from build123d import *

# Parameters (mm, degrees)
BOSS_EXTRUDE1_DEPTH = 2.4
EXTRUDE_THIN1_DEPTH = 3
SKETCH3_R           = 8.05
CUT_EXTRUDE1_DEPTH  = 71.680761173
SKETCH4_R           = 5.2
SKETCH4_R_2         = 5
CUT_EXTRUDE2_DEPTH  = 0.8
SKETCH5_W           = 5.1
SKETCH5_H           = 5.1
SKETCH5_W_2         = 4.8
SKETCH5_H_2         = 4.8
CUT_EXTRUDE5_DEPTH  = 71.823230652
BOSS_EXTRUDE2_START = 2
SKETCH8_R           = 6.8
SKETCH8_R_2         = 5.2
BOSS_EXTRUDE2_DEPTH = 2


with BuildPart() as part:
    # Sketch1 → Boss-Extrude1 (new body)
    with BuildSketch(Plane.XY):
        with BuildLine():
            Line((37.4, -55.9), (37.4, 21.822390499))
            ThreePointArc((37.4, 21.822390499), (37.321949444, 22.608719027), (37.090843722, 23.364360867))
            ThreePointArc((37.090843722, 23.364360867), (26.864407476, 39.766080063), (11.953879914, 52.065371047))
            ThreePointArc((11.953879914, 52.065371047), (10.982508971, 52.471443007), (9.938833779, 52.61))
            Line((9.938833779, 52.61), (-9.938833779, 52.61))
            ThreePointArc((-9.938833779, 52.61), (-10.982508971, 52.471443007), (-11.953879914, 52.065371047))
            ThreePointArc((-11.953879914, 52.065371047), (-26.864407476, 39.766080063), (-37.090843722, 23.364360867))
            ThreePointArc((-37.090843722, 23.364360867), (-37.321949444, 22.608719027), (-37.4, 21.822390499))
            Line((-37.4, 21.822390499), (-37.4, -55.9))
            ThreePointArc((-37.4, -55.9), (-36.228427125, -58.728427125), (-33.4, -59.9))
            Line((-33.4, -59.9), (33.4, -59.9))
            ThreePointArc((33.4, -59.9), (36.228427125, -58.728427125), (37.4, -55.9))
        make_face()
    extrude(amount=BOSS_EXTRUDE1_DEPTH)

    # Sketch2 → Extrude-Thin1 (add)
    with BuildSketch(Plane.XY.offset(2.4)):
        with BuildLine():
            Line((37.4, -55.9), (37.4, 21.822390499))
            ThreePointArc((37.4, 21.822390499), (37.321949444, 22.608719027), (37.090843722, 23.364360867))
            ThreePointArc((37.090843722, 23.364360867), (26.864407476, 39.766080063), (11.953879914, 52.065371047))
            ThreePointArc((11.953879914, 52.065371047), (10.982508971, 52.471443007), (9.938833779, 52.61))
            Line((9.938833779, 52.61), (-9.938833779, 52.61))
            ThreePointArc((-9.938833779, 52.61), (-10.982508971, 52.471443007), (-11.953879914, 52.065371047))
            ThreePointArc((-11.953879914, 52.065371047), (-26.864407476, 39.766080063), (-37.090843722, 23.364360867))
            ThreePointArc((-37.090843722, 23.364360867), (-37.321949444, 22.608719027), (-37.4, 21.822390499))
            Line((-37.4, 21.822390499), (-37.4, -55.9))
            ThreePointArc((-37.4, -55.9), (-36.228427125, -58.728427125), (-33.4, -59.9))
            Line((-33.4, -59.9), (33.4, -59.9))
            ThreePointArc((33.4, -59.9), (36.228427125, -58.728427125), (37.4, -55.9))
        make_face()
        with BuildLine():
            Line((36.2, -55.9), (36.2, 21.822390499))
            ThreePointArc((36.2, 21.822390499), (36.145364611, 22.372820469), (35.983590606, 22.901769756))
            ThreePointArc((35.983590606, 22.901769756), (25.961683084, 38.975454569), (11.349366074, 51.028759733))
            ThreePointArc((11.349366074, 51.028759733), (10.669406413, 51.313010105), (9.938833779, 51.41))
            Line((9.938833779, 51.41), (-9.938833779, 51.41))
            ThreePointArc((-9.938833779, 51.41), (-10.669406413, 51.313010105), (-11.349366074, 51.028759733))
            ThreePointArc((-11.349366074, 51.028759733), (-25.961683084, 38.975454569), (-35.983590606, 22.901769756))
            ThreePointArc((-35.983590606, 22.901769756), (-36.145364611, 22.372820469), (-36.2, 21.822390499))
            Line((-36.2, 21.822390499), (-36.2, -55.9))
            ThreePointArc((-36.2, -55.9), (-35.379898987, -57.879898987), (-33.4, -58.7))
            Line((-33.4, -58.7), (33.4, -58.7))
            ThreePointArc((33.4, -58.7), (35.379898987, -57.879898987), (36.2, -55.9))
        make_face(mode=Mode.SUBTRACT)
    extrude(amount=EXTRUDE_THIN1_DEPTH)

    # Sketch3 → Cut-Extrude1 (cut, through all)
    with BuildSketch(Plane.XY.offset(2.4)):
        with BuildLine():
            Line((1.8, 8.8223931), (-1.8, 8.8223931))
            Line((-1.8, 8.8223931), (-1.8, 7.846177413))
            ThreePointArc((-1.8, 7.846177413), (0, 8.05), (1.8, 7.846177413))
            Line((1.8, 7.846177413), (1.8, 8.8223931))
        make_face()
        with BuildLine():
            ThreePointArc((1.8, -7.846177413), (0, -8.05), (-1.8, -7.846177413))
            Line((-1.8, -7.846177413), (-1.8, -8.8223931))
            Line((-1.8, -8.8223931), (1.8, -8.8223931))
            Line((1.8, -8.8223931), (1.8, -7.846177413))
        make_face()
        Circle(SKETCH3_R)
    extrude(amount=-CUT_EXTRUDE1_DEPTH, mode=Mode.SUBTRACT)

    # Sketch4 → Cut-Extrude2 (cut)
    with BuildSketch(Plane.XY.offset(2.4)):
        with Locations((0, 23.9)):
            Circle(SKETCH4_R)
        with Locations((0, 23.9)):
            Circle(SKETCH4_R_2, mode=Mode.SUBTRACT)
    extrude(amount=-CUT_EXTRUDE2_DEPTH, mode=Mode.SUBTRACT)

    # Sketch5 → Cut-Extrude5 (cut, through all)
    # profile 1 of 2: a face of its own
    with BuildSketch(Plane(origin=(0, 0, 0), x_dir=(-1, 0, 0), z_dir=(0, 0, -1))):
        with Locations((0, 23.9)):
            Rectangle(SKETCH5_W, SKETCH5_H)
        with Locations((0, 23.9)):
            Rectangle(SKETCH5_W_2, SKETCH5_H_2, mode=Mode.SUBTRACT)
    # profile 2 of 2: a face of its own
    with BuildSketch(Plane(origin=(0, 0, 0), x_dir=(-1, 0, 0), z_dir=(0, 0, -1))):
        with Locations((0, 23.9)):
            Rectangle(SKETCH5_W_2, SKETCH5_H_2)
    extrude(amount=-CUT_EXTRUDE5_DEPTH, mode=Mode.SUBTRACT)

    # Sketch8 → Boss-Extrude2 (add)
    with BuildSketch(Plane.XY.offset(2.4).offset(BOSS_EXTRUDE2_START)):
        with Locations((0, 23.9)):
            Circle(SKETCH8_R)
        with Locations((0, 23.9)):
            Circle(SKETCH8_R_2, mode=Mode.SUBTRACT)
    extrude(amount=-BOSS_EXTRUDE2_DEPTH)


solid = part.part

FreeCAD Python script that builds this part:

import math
import FreeCAD as App
import Part
import Sketcher

V = App.Vector
Q = App.Units.Quantity


def add_polygon(sketch, points):
    """Adds a closed chain of lines whose ends are joined by coincident constraints."""
    first, n = sketch.GeometryCount, len(points)
    for a, b in zip(points, points[1:] + points[:1]):
        sketch.addGeometry(Part.LineSegment(App.Vector(*a, 0), App.Vector(*b, 0)), False)
    for i in range(n):
        sketch.addConstraint(Sketcher.Constraint("Coincident", first + i, 2, first + (i + 1) % n, 1))

doc = App.newDocument("Part")
body = doc.addObject("PartDesign::Body", "Body")

sketch1 = body.newObject("Sketcher::SketchObject", "Sketch")
sketch1.AttachmentSupport = (doc.getObject("XY_Plane"), [""])
sketch1.MapMode = "FlatFace"
sketch1.addGeometry([
    Part.LineSegment(V(37.4, -55.9, 0), V(37.4, 21.8, 0)),
    Part.ArcOfCircle(Part.Circle(V(33.4, 21.8, 0), V(0, 0, 1), 4), math.radians(0), math.radians(23)),
    Part.ArcOfCircle(Part.Circle(V(-18.3, 0.2, 0), V(0, 0, 1), 60), math.radians(23), math.radians(60)),
    Part.ArcOfCircle(Part.Circle(V(9.9, 48.6, 0), V(0, 0, 1), 4), math.radians(60), math.radians(90)),
    Part.LineSegment(V(9.9, 52.6, 0), V(-9.9, 52.6, 0)),
    Part.ArcOfCircle(Part.Circle(V(-9.9, 48.6, 0), V(0, 0, 1), 4), math.radians(90), math.radians(120)),
    Part.ArcOfCircle(Part.Circle(V(18.3, 0.2, 0), V(0, 0, 1), 60), math.radians(120), math.radians(157)),
    Part.ArcOfCircle(Part.Circle(V(-33.4, 21.8, 0), V(0, 0, 1), 4), math.radians(157), math.radians(180)),
    Part.LineSegment(V(-37.4, 21.8, 0), V(-37.4, -55.9, 0)),
    Part.ArcOfCircle(Part.Circle(V(-33.4, -55.9, 0), V(0, 0, 1), 4), math.radians(180), math.radians(270)),
    Part.LineSegment(V(-33.4, -59.9, 0), V(33.4, -59.9, 0)),
    Part.ArcOfCircle(Part.Circle(V(33.4, -55.9, 0), V(0, 0, 1), 4), math.radians(-90), math.radians(0)),
], False)
sketch1.addConstraint([
    Sketcher.Constraint("Tangent", 0, 2, 1, 1),
    Sketcher.Constraint("Tangent", 1, 2, 2, 1),
    Sketcher.Constraint("Tangent", 2, 2, 3, 1),
    Sketcher.Constraint("Tangent", 3, 2, 4, 1),
    Sketcher.Constraint("Tangent", 4, 2, 5, 1),
    Sketcher.Constraint("Tangent", 5, 2, 6, 1),
    Sketcher.Constraint("Tangent", 6, 2, 7, 1),
    Sketcher.Constraint("Tangent", 7, 2, 8, 1),
    Sketcher.Constraint("Tangent", 8, 2, 9, 1),
    Sketcher.Constraint("Tangent", 9, 2, 10, 1),
    Sketcher.Constraint("Tangent", 10, 2, 11, 1),
    Sketcher.Constraint("Tangent", 11, 2, 0, 1),
    Sketcher.Constraint("Vertical", 0),
    Sketcher.Constraint("Horizontal", 4),
    Sketcher.Constraint("Vertical", 8),
    Sketcher.Constraint("Horizontal", 10),
    Sketcher.Constraint("Equal", 1, 3),
    Sketcher.Constraint("Equal", 3, 5),
    Sketcher.Constraint("Equal", 2, 6),
    Sketcher.Constraint("Equal", 5, 7),
    Sketcher.Constraint("Equal", 7, 9),
    Sketcher.Constraint("Equal", 9, 11),
    Sketcher.Constraint("Symmetric", 2, 3, 6, 3, -2),
    Sketcher.Constraint("Horizontal", 1, 3, 7, 3),
    Sketcher.Constraint("Radius", 1, Q("4 mm")),
    Sketcher.Constraint("Radius", 2, Q("60 mm")),
    Sketcher.Constraint("DistanceX", 10, 1, 10, 2, Q("66.8 mm")),
    Sketcher.Constraint("DistanceY", 9, 3, -1, 1, Q("55.9 mm")),
    Sketcher.Constraint("DistanceY", -1, 1, 3, 3, Q("48.61 mm")),
    Sketcher.Constraint("DistanceY", 0, 1, 0, 2, Q("77.72239 mm")),
    Sketcher.Constraint("DistanceX", 4, 2, 4, 1, Q("19.877668 mm")),
])
pad1 = body.newObject("PartDesign::Pad", "Pad")
pad1.Profile = sketch1
pad1.Length = 2.4

sketch2 = body.newObject("Sketcher::SketchObject", "Sketch001")
sketch2.AttachmentSupport = (doc.getObject("XY_Plane"), [""])
sketch2.MapMode = "FlatFace"
sketch2.AttachmentOffset = App.Placement(V(0, 0, 2.4), App.Rotation())
sketch2.addGeometry([
    Part.LineSegment(V(37.4, -55.9, 0), V(37.4, 21.8, 0)),
    Part.ArcOfCircle(Part.Circle(V(33.4, 21.8, 0), V(0, 0, 1), 4), math.radians(0), math.radians(23)),
    Part.ArcOfCircle(Part.Circle(V(-18.3, 0.2, 0), V(0, 0, 1), 60), math.radians(23), math.radians(60)),
    Part.ArcOfCircle(Part.Circle(V(9.9, 48.6, 0), V(0, 0, 1), 4), math.radians(60), math.radians(90)),
    Part.LineSegment(V(9.9, 52.6, 0), V(-9.9, 52.6, 0)),
    Part.ArcOfCircle(Part.Circle(V(-9.9, 48.6, 0), V(0, 0, 1), 4), math.radians(90), math.radians(120)),
    Part.ArcOfCircle(Part.Circle(V(18.3, 0.2, 0), V(0, 0, 1), 60), math.radians(120), math.radians(157)),
    Part.ArcOfCircle(Part.Circle(V(-33.4, 21.8, 0), V(0, 0, 1), 4), math.radians(157), math.radians(180)),
    Part.LineSegment(V(-37.4, 21.8, 0), V(-37.4, -55.9, 0)),
    Part.ArcOfCircle(Part.Circle(V(-33.4, -55.9, 0), V(0, 0, 1), 4), math.radians(180), math.radians(270)),
    Part.LineSegment(V(-33.4, -59.9, 0), V(33.4, -59.9, 0)),
    Part.ArcOfCircle(Part.Circle(V(33.4, -55.9, 0), V(0, 0, 1), 4), math.radians(-90), math.radians(0)),
    Part.LineSegment(V(36.2, 21.8, 0), V(36.2, -55.9, 0)),
    Part.ArcOfCircle(Part.Circle(V(33.4, -55.9, 0), V(0, 0, 1), 2.8), math.radians(-90), math.radians(0)),
    Part.LineSegment(V(33.4, -58.7, 0), V(-33.4, -58.7, 0)),
    Part.ArcOfCircle(Part.Circle(V(-33.4, -55.9, 0), V(0, 0, 1), 2.8), math.radians(-180), math.radians(-90)),
    Part.LineSegment(V(-36.2, -55.9, 0), V(-36.2, 21.8, 0)),
    Part.ArcOfCircle(Part.Circle(V(-33.4, 21.8, 0), V(0, 0, 1), 2.8), math.radians(157), math.radians(180)),
    Part.ArcOfCircle(Part.Circle(V(18.3, 0.2, 0), V(0, 0, 1), 58.8), math.radians(120), math.radians(157)),
    Part.ArcOfCircle(Part.Circle(V(-9.9, 48.6, 0), V(0, 0, 1), 2.8), math.radians(90), math.radians(120)),
    Part.LineSegment(V(-9.9, 51.4, 0), V(9.9, 51.4, 0)),
    Part.ArcOfCircle(Part.Circle(V(9.9, 48.6, 0), V(0, 0, 1), 2.8), math.radians(60), math.radians(90)),
    Part.ArcOfCircle(Part.Circle(V(-18.3, 0.2, 0), V(0, 0, 1), 58.8), math.radians(23), math.radians(60)),
    Part.ArcOfCircle(Part.Circle(V(33.4, 21.8, 0), V(0, 0, 1), 2.8), math.radians(0), math.radians(23)),
], False)
sketch2.addConstraint([
    Sketcher.Constraint("Tangent", 0, 2, 1, 1),
    Sketcher.Constraint("Tangent", 1, 2, 2, 1),
    Sketcher.Constraint("Tangent", 2, 2, 3, 1),
    Sketcher.Constraint("Tangent", 3, 2, 4, 1),
    Sketcher.Constraint("Tangent", 4, 2, 5, 1),
    Sketcher.Constraint("Tangent", 5, 2, 6, 1),
    Sketcher.Constraint("Tangent", 6, 2, 7, 1),
    Sketcher.Constraint("Tangent", 7, 2, 8, 1),
    Sketcher.Constraint("Tangent", 8, 2, 9, 1),
    Sketcher.Constraint("Tangent", 9, 2, 10, 1),
    Sketcher.Constraint("Tangent", 10, 2, 11, 1),
    Sketcher.Constraint("Tangent", 11, 2, 0, 1),
    Sketcher.Constraint("Tangent", 12, 2, 13, 2),
    Sketcher.Constraint("Tangent", 13, 1, 14, 1),
    Sketcher.Constraint("Tangent", 14, 2, 15, 2),
    Sketcher.Constraint("Tangent", 15, 1, 16, 1),
    Sketcher.Constraint("Tangent", 16, 2, 17, 2),
    Sketcher.Constraint("Tangent", 17, 1, 18, 2),
    Sketcher.Constraint("Tangent", 18, 1, 19, 2),
    Sketcher.Constraint("Tangent", 19, 1, 20, 1),
    Sketcher.Constraint("Tangent", 20, 2, 21, 2),
    Sketcher.Constraint("Tangent", 21, 1, 22, 2),
    Sketcher.Constraint("Tangent", 22, 1, 23, 2),
    Sketcher.Constraint("Tangent", 23, 1, 12, 1),
    Sketcher.Constraint("Vertical", 0),
    Sketcher.Constraint("Horizontal", 4),
    Sketcher.Constraint("Vertical", 8),
    Sketcher.Constraint("Horizontal", 10),
    Sketcher.Constraint("Vertical", 12),
    Sketcher.Constraint("Horizontal", 14),
    Sketcher.Constraint("Vertical", 16),
    Sketcher.Constraint("Horizontal", 20),
    Sketcher.Constraint("Coincident", 13, 3, 11, 3),
    Sketcher.Constraint("Coincident", 15, 3, 9, 3),
    Sketcher.Constraint("Coincident", 17, 3, 7, 3),
    Sketcher.Constraint("Coincident", 18, 3, 6, 3),
    Sketcher.Constraint("Coincident", 19, 3, 5, 3),
    Sketcher.Constraint("Coincident", 21, 3, 3, 3),
    Sketcher.Constraint("Coincident", 22, 3, 2, 3),
    Sketcher.Constraint("Equal", 1, 3),
    Sketcher.Constraint("Equal", 3, 5),
    Sketcher.Constraint("Equal", 2, 6),
    Sketcher.Constraint("Equal", 5, 7),
    Sketcher.Constraint("Equal", 7, 9),
    Sketcher.Constraint("Equal", 9, 11),
    Sketcher.Constraint("Equal", 21, 23),
    Sketcher.Constraint("Symmetric", 2, 3, 6, 3, -2),
    Sketcher.Constraint("Horizontal", 1, 3, 7, 3),
    Sketcher.Constraint("Radius", 1, Q("4 mm")),
    Sketcher.Constraint("Radius", 2, Q("60 mm")),
    Sketcher.Constraint("Radius", 13, Q("2.8 mm")),
    Sketcher.Constraint("DistanceX", 10, 1, 10, 2, Q("66.8 mm")),
    Sketcher.Constraint("DistanceY", 9, 3, -1, 1, Q("55.9 mm")),
    Sketcher.Constraint("DistanceY", -1, 1, 3, 3, Q("48.61 mm")),
    Sketcher.Constraint("DistanceY", 0, 1, 0, 2, Q("77.72239 mm")),
    Sketcher.Constraint("DistanceX", 18, 1, 3, 2, Q("21.2882 mm")),
])
pad2 = body.newObject("PartDesign::Pad", "Pad001")
pad2.Profile = sketch2
pad2.Length = 3

sketch3 = body.newObject("Sketcher::SketchObject", "Sketch002")
sketch3.AttachmentSupport = (doc.getObject("XY_Plane"), [""])
sketch3.MapMode = "FlatFace"
sketch3.AttachmentOffset = App.Placement(V(0, 0, 2.4), App.Rotation())
sketch3.addGeometry([
    Part.LineSegment(V(1.8, 8.8, 0), V(-1.8, 8.8, 0)),
    Part.LineSegment(V(-1.8, 8.8, 0), V(-1.8, 7.8, 0)),
    Part.ArcOfCircle(Part.Circle(V(0, 0, 0), V(0, 0, 1), 8.1), math.radians(103), math.radians(257)),
    Part.LineSegment(V(-1.8, -7.8, 0), V(-1.8, -8.8, 0)),
    Part.LineSegment(V(-1.8, -8.8, 0), V(1.8, -8.8, 0)),
    Part.LineSegment(V(1.8, -8.8, 0), V(1.8, -7.8, 0)),
    Part.ArcOfCircle(Part.Circle(V(0, 0, 0), V(0, 0, 1), 8.1), math.radians(-77), math.radians(77)),
    Part.LineSegment(V(1.8, 7.8, 0), V(1.8, 8.8, 0)),
], False)
sketch3.addConstraint([
    Sketcher.Constraint("Coincident", 0, 2, 1, 1),
    Sketcher.Constraint("Coincident", 1, 2, 2, 1),
    Sketcher.Constraint("Coincident", 2, 2, 3, 1),
    Sketcher.Constraint("Coincident", 3, 2, 4, 1),
    Sketcher.Constraint("Coincident", 4, 2, 5, 1),
    Sketcher.Constraint("Coincident", 5, 2, 6, 1),
    Sketcher.Constraint("Coincident", 6, 2, 7, 1),
    Sketcher.Constraint("Coincident", 7, 2, 0, 1),
    Sketcher.Constraint("Horizontal", 0),
    Sketcher.Constraint("Vertical", 1),
    Sketcher.Constraint("Vertical", 3),
    Sketcher.Constraint("Horizontal", 4),
    Sketcher.Constraint("Vertical", 5),
    Sketcher.Constraint("Vertical", 7),
    Sketcher.Constraint("Coincident", 2, 3, -1, 1),
    Sketcher.Constraint("Coincident", 6, 3, -1, 1),
    Sketcher.Constraint("Equal", 2, 6),
    Sketcher.Constraint("Symmetric", 0, 2, 4, 2, -1, 1),
    Sketcher.Constraint("Horizontal", 2, 2, 5, 2),
    Sketcher.Constraint("Horizontal", 1, 2, 6, 2),
    Sketcher.Constraint("Radius", 2, Q("8.05 mm")),
    Sketcher.Constraint("DistanceX", 0, 2, 0, 1, Q("3.6 mm")),
    Sketcher.Constraint("DistanceY", 1, 2, 1, 1, Q("0.976216 mm")),
])
pocket1 = body.newObject("PartDesign::Pocket", "Pocket")
pocket1.Profile = sketch3
pocket1.Type = "ThroughAll"

sketch4 = body.newObject("Sketcher::SketchObject", "Sketch003")
sketch4.AttachmentSupport = (doc.getObject("XY_Plane"), [""])
sketch4.MapMode = "FlatFace"
sketch4.AttachmentOffset = App.Placement(V(0, 0, 2.4), App.Rotation())
sketch4.addGeometry([
    Part.Circle(V(0, 24, 0), V(0, 0, 1), 5),
    Part.Circle(V(0, 24, 0), V(0, 0, 1), 5),
], False)
sketch4.addConstraint([
    Sketcher.Constraint("Coincident", 1, 3, 0, 3),
    Sketcher.Constraint("PointOnObject", 0, 3, -2),
    Sketcher.Constraint("Diameter", 1, Q("10 mm")),
    Sketcher.Constraint("Diameter", 0, Q("10.4 mm")),
    Sketcher.Constraint("DistanceY", -1, 1, 0, 3, Q("23.9 mm")),
])
pocket2 = body.newObject("PartDesign::Pocket", "Pocket001")
pocket2.Profile = sketch4
pocket2.Length = 0.8

sketch5 = body.newObject("Sketcher::SketchObject", "Sketch004")
sketch5.AttachmentSupport = (doc.getObject("XY_Plane"), [""])
sketch5.MapMode = "FlatFace"
add_polygon(sketch5, [(3, 26), (3, 21), (-3, 21), (-3, 26)])
sketch5.addConstraint([
    Sketcher.Constraint("Vertical", 0),
    Sketcher.Constraint("Horizontal", 1),
    Sketcher.Constraint("Vertical", 2),
    Sketcher.Constraint("Horizontal", 3),
    Sketcher.Constraint("Equal", 3, 0),
    Sketcher.Constraint("DistanceX", 1, 2, 1, 1, Q("5.1 mm")),
    Sketcher.Constraint("DistanceX", -1, 1, 0, 2, Q("2.55 mm")),
    Sketcher.Constraint("DistanceY", -1, 1, 0, 2, Q("21.35 mm")),
])
pocket3 = body.newObject("PartDesign::Pocket", "Pocket002")
pocket3.Profile = sketch5
pocket3.Length = 71.823231
pocket3.Reversed = True

sketch6 = body.newObject("Sketcher::SketchObject", "Sketch005")
sketch6.AttachmentSupport = (doc.getObject("XY_Plane"), [""])
sketch6.MapMode = "FlatFace"
sketch6.AttachmentOffset = App.Placement(V(0, 0, 4.4), App.Rotation())
sketch6.addGeometry([
    Part.Circle(V(0, 24, 0), V(0, 0, 1), 7),
    Part.Circle(V(0, 24, 0), V(0, 0, 1), 5),
], False)
sketch6.addConstraint([
    Sketcher.Constraint("Coincident", 1, 3, 0, 3),
    Sketcher.Constraint("PointOnObject", 0, 3, -2),
    Sketcher.Constraint("Diameter", 0, Q("13.6 mm")),
    Sketcher.Constraint("Diameter", 1, Q("10.4 mm")),
    Sketcher.Constraint("DistanceY", -1, 1, 0, 3, Q("23.9 mm")),
])
pad3 = body.newObject("PartDesign::Pad", "Pad002")
pad3.Profile = sketch6
pad3.Length = 2
pad3.Reversed = True

doc.recompute()
